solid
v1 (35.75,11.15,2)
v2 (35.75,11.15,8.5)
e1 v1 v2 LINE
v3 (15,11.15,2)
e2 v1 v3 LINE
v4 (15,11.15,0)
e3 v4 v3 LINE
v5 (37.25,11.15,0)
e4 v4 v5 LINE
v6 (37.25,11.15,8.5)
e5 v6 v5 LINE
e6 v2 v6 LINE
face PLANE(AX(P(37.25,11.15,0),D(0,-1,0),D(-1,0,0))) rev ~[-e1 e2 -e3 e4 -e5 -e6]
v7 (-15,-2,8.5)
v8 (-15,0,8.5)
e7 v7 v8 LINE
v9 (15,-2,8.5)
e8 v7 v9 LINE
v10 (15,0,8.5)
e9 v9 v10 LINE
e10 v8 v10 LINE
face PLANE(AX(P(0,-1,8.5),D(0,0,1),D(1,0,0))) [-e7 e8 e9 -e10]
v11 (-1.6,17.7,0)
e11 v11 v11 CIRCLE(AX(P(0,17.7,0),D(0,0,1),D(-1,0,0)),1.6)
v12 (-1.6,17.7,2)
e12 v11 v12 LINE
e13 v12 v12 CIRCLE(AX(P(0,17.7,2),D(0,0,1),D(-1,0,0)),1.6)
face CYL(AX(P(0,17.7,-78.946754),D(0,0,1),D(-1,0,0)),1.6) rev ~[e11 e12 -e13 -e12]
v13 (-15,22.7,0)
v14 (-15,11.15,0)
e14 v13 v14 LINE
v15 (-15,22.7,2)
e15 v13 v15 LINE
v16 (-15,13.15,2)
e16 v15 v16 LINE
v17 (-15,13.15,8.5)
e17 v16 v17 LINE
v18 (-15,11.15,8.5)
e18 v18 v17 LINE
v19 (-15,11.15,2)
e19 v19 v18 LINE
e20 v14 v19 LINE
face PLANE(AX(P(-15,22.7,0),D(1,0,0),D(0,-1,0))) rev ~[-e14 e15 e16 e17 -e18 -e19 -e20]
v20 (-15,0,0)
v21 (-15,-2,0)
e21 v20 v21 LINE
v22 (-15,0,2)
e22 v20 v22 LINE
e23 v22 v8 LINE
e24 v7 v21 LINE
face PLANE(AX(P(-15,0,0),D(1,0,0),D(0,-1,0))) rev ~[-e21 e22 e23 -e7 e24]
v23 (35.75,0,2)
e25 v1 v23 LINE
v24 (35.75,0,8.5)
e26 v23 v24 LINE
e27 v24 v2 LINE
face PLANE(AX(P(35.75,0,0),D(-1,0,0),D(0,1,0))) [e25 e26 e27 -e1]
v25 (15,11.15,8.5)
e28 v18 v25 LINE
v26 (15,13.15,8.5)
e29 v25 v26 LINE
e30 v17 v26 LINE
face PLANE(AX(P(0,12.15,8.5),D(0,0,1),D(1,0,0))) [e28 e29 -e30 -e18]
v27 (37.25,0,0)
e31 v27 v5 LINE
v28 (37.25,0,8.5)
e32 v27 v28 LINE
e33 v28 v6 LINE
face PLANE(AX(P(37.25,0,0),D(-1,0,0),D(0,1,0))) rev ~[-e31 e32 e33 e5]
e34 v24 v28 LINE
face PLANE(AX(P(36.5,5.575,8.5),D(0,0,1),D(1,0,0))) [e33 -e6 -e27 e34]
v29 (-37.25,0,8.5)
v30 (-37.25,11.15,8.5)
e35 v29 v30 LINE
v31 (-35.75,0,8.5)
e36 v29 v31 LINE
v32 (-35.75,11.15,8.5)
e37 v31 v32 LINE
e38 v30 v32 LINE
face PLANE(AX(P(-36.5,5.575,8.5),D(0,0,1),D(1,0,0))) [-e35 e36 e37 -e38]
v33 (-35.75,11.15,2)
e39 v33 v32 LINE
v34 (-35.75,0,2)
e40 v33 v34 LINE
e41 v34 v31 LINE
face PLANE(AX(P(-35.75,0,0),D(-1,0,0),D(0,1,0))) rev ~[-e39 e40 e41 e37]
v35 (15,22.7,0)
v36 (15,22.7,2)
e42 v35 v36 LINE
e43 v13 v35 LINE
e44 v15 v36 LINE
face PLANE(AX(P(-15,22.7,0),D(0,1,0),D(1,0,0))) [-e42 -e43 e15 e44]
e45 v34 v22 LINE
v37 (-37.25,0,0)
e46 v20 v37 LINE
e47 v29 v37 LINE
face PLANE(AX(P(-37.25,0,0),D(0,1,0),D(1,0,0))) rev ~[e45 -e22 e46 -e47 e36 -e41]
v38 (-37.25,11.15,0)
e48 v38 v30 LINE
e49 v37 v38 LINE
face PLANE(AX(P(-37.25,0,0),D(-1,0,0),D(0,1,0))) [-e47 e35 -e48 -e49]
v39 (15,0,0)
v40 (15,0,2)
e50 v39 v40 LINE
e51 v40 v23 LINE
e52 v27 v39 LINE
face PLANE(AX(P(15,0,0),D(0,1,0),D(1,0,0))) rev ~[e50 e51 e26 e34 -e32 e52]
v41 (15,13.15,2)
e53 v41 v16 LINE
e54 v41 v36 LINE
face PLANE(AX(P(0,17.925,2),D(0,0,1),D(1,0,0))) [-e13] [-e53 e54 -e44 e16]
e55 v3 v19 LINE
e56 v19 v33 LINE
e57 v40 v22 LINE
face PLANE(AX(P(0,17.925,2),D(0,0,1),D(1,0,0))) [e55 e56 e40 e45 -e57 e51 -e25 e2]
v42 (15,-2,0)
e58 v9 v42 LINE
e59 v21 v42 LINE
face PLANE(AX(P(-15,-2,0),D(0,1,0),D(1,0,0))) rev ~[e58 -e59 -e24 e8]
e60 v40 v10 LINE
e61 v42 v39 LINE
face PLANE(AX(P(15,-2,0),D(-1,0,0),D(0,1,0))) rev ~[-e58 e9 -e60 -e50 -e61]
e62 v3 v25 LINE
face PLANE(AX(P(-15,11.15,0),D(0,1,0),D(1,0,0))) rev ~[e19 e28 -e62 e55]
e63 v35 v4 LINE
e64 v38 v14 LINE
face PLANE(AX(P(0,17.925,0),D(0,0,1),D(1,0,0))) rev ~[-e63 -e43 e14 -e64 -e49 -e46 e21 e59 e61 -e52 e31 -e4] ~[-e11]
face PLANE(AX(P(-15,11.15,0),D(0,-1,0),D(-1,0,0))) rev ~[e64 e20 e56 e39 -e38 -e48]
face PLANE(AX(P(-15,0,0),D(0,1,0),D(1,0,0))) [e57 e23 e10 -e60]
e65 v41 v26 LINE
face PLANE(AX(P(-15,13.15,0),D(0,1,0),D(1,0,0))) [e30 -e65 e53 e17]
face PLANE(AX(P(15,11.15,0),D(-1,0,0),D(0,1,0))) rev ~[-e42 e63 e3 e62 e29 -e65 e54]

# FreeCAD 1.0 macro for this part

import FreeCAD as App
import Part
import Sketcher
from FreeCAD import Vector

doc = App.newDocument("Part")
body = doc.addObject("PartDesign::Body", "Body")

# Sketch on XY plane
sketch1 = doc.addObject("Sketcher::SketchObject", "Sketch")
body.addObject(sketch1)
sketch1.AttachmentSupport = (doc.XY_Plane, [""])
sketch1.MapMode = "FlatFace"
sketch1.addGeometry([
    Part.LineSegment(Vector(-15, 22.7, 0), Vector(-15, 11.15, 0)),  # 0
    Part.LineSegment(Vector(-15, 11.15, 0), Vector(-37.25, 11.15, 0)),  # 1
    Part.LineSegment(Vector(-37.25, 11.15, 0), Vector(-37.25, 0, 0)),  # 2
    Part.LineSegment(Vector(-37.25, 0, 0), Vector(-15, 0, 0)),  # 3
    Part.LineSegment(Vector(-15, 0, 0), Vector(-15, -2, 0)),  # 4
    Part.LineSegment(Vector(-15, -2, 0), Vector(15, -2, 0)),  # 5
    Part.LineSegment(Vector(15, -2, 0), Vector(15, 0, 0)),  # 6
    Part.LineSegment(Vector(15, 0, 0), Vector(37.25, 0, 0)),  # 7
    Part.LineSegment(Vector(37.25, 0, 0), Vector(37.25, 11.15, 0)),  # 8
    Part.LineSegment(Vector(37.25, 11.15, 0), Vector(15, 11.15, 0)),  # 9
    Part.LineSegment(Vector(15, 11.15, 0), Vector(15, 22.7, 0)),  # 10
    Part.LineSegment(Vector(15, 22.7, 0), Vector(-15, 22.7, 0)),  # 11
], False)
sketch1.addConstraint([
    Sketcher.Constraint("Coincident", 0, 2, 1, 1),
    Sketcher.Constraint("Coincident", 1, 2, 2, 1),
    Sketcher.Constraint("Coincident", 2, 2, 3, 1),
    Sketcher.Constraint("Coincident", 3, 2, 4, 1),
    Sketcher.Constraint("Coincident", 4, 2, 5, 1),
    Sketcher.Constraint("Coincident", 5, 2, 6, 1),
    Sketcher.Constraint("Coincident", 6, 2, 7, 1),
    Sketcher.Constraint("Coincident", 7, 2, 8, 1),
    Sketcher.Constraint("Coincident", 8, 2, 9, 1),
    Sketcher.Constraint("Coincident", 9, 2, 10, 1),
    Sketcher.Constraint("Coincident", 10, 2, 11, 1),
    Sketcher.Constraint("Coincident", 11, 2, 0, 1),
    Sketcher.Constraint("Vertical", 0),
    Sketcher.Constraint("Horizontal", 1),
    Sketcher.Constraint("Vertical", 2),
    Sketcher.Constraint("Horizontal", 3),
    Sketcher.Constraint("Vertical", 4),
    Sketcher.Constraint("Horizontal", 5),
    Sketcher.Constraint("Vertical", 6),
    Sketcher.Constraint("Horizontal", 7),
    Sketcher.Constraint("Vertical", 8),
    Sketcher.Constraint("Horizontal", 9),
    Sketcher.Constraint("Vertical", 10),
    Sketcher.Constraint("Horizontal", 11),
    Sketcher.Constraint("Symmetric", 3, 2, 6, 2, -1, 1),
    Sketcher.Constraint("Symmetric", 2, 2, 7, 2, -2),
    Sketcher.Constraint("Symmetric", 0, 2, 9, 2, -2),
    Sketcher.Constraint("Vertical", 0, 2, 3, 2),
    Sketcher.Constraint("DistanceX", 5, 1, 5, 2, 30.0),
    Sketcher.Constraint("DistanceY", 4, 2, 4, 1, 2.0),
    Sketcher.Constraint("DistanceX", 1, 2, 1, 1, 22.25),
    Sketcher.Constraint("DistanceY", 0, 2, 0, 1, 11.55),
    Sketcher.Constraint("DistanceY", 2, 2, 2, 1, 11.15),
])
pad1 = doc.addObject("PartDesign::Pad", "Pad")
body.addObject(pad1)
pad1.Profile = sketch1
pad1.Length = 2

# Sketch on XY plane
sketch2 = doc.addObject("Sketcher::SketchObject", "Sketch001")
body.addObject(sketch2)
sketch2.AttachmentSupport = (doc.XY_Plane, [""])
sketch2.MapMode = "FlatFace"
sketch2.addGeometry([
    Part.LineSegment(Vector(-15, 13.15, 0), Vector(-15, 11.15, 0)),  # 0
    Part.LineSegment(Vector(-15, 11.15, 0), Vector(15, 11.15, 0)),  # 1
    Part.LineSegment(Vector(15, 11.15, 0), Vector(15, 13.15, 0)),  # 2
    Part.LineSegment(Vector(15, 13.15, 0), Vector(-15, 13.15, 0)),  # 3
    Part.LineSegment(Vector(-15, 0, 0), Vector(-15, -2, 0)),  # 4
    Part.LineSegment(Vector(-15, -2, 0), Vector(15, -2, 0)),  # 5
    Part.LineSegment(Vector(15, -2, 0), Vector(15, 0, 0)),  # 6
    Part.LineSegment(Vector(15, 0, 0), Vector(-15, 0, 0)),  # 7
    Part.LineSegment(Vector(-37.25, 11.15, 0), Vector(-37.25, 0, 0)),  # 8
    Part.LineSegment(Vector(-37.25, 0, 0), Vector(-35.75, 0, 0)),  # 9
    Part.LineSegment(Vector(-35.75, 0, 0), Vector(-35.75, 11.15, 0)),  # 10
    Part.LineSegment(Vector(-35.75, 11.15, 0), Vector(-37.25, 11.15, 0)),  # 11
    Part.LineSegment(Vector(35.75, 11.15, 0), Vector(35.75, 0, 0)),  # 12
    Part.LineSegment(Vector(35.75, 0, 0), Vector(37.25, 0, 0)),  # 13
    Part.LineSegment(Vector(37.25, 0, 0), Vector(37.25, 11.15, 0)),  # 14
    Part.LineSegment(Vector(37.25, 11.15, 0), Vector(35.75, 11.15, 0)),  # 15
], False)
sketch2.addConstraint([
    Sketcher.Constraint("Coincident", 0, 2, 1, 1),
    Sketcher.Constraint("Coincident", 1, 2, 2, 1),
    Sketcher.Constraint("Coincident", 2, 2, 3, 1),
    Sketcher.Constraint("Coincident", 3, 2, 0, 1),
    Sketcher.Constraint("Coincident", 4, 2, 5, 1),
    Sketcher.Constraint("Coincident", 5, 2, 6, 1),
    Sketcher.Constraint("Coincident", 6, 2, 7, 1),
    Sketcher.Constraint("Coincident", 7, 2, 4, 1),
    Sketcher.Constraint("Coincident", 8, 2, 9, 1),
    Sketcher.Constraint("Coincident", 9, 2, 10, 1),
    Sketcher.Constraint("Coincident", 10, 2, 11, 1),
    Sketcher.Constraint("Coincident", 11, 2, 8, 1),
    Sketcher.Constraint("Coincident", 12, 2, 13, 1),
    Sketcher.Constraint("Coincident", 13, 2, 14, 1),
    Sketcher.Constraint("Coincident", 14, 2, 15, 1),
    Sketcher.Constraint("Coincident", 15, 2, 12, 1),
    Sketcher.Constraint("Vertical", 0),
    Sketcher.Constraint("Horizontal", 1),
    Sketcher.Constraint("Vertical", 2),
    Sketcher.Constraint("Horizontal", 3),
    Sketcher.Constraint("Vertical", 4),
    Sketcher.Constraint("Horizontal", 5),
    Sketcher.Constraint("Vertical", 6),
    Sketcher.Constraint("Horizontal", 7),
    Sketcher.Constraint("Vertical", 8),
    Sketcher.Constraint("Horizontal", 9),
    Sketcher.Constraint("Vertical", 10),
    Sketcher.Constraint("Horizontal", 11),
    Sketcher.Constraint("Vertical", 12),
    Sketcher.Constraint("Horizontal", 13),
    Sketcher.Constraint("Vertical", 14),
    Sketcher.Constraint("Horizontal", 15),
    Sketcher.Constraint("Symmetric", 6, 2, 7, 2, -1, 1),
    Sketcher.Constraint("Symmetric", 9, 2, 12, 2, -1, 1),
    Sketcher.Constraint("Symmetric", 8, 2, 13, 2, -2),
    Sketcher.Constraint("Horizontal", 1, 2, 10, 2),
    Sketcher.Constraint("Horizontal", 11, 2, 14, 2),
    Sketcher.Constraint("Vertical", 3, 2, 4, 2),
    Sketcher.Constraint("Vertical", 2, 2, 5, 2),
    Sketcher.Constraint("Equal", 2, 4),
    Sketcher.Constraint("DistanceX", 1, 1, 1, 2, 30.0),
    Sketcher.Constraint("DistanceY", 0, 2, 0, 1, 2.0),
    Sketcher.Constraint("DistanceX", 9, 1, 9, 2, 1.5),
    Sketcher.Constraint("DistanceY", 8, 2, 8, 1, 11.15),
    Sketcher.Constraint("DistanceX", 8, 2, -1, 1, 37.25),
])
pad2 = doc.addObject("PartDesign::Pad", "Pad001")
body.addObject(pad2)
pad2.Profile = sketch2
pad2.Length = 8.5

# Sketch on XY plane
sketch3 = doc.addObject("Sketcher::SketchObject", "Sketch002")
body.addObject(sketch3)
sketch3.AttachmentSupport = (doc.XY_Plane, [""])
sketch3.MapMode = "FlatFace"
sketch3.addGeometry(Part.Circle(Vector(0, 17.7, 0), Vector(0, 0, 1), 1.6), False)
sketch3.addConstraint([
    Sketcher.Constraint("PointOnObject", 0, 3, -2),
    Sketcher.Constraint("Diameter", 0, 3.2),
    Sketcher.Constraint("DistanceY", -1, 1, 0, 3, 17.7),
])
doc.recompute()
hole = doc.addObject("PartDesign::Hole", "Hole")
body.addObject(hole)
hole.Profile = sketch3
hole.ThreadType = "None"
hole.Diameter = 3.2
hole.DepthType = "ThroughAll"
hole.Reversed = True

doc.recompute()
